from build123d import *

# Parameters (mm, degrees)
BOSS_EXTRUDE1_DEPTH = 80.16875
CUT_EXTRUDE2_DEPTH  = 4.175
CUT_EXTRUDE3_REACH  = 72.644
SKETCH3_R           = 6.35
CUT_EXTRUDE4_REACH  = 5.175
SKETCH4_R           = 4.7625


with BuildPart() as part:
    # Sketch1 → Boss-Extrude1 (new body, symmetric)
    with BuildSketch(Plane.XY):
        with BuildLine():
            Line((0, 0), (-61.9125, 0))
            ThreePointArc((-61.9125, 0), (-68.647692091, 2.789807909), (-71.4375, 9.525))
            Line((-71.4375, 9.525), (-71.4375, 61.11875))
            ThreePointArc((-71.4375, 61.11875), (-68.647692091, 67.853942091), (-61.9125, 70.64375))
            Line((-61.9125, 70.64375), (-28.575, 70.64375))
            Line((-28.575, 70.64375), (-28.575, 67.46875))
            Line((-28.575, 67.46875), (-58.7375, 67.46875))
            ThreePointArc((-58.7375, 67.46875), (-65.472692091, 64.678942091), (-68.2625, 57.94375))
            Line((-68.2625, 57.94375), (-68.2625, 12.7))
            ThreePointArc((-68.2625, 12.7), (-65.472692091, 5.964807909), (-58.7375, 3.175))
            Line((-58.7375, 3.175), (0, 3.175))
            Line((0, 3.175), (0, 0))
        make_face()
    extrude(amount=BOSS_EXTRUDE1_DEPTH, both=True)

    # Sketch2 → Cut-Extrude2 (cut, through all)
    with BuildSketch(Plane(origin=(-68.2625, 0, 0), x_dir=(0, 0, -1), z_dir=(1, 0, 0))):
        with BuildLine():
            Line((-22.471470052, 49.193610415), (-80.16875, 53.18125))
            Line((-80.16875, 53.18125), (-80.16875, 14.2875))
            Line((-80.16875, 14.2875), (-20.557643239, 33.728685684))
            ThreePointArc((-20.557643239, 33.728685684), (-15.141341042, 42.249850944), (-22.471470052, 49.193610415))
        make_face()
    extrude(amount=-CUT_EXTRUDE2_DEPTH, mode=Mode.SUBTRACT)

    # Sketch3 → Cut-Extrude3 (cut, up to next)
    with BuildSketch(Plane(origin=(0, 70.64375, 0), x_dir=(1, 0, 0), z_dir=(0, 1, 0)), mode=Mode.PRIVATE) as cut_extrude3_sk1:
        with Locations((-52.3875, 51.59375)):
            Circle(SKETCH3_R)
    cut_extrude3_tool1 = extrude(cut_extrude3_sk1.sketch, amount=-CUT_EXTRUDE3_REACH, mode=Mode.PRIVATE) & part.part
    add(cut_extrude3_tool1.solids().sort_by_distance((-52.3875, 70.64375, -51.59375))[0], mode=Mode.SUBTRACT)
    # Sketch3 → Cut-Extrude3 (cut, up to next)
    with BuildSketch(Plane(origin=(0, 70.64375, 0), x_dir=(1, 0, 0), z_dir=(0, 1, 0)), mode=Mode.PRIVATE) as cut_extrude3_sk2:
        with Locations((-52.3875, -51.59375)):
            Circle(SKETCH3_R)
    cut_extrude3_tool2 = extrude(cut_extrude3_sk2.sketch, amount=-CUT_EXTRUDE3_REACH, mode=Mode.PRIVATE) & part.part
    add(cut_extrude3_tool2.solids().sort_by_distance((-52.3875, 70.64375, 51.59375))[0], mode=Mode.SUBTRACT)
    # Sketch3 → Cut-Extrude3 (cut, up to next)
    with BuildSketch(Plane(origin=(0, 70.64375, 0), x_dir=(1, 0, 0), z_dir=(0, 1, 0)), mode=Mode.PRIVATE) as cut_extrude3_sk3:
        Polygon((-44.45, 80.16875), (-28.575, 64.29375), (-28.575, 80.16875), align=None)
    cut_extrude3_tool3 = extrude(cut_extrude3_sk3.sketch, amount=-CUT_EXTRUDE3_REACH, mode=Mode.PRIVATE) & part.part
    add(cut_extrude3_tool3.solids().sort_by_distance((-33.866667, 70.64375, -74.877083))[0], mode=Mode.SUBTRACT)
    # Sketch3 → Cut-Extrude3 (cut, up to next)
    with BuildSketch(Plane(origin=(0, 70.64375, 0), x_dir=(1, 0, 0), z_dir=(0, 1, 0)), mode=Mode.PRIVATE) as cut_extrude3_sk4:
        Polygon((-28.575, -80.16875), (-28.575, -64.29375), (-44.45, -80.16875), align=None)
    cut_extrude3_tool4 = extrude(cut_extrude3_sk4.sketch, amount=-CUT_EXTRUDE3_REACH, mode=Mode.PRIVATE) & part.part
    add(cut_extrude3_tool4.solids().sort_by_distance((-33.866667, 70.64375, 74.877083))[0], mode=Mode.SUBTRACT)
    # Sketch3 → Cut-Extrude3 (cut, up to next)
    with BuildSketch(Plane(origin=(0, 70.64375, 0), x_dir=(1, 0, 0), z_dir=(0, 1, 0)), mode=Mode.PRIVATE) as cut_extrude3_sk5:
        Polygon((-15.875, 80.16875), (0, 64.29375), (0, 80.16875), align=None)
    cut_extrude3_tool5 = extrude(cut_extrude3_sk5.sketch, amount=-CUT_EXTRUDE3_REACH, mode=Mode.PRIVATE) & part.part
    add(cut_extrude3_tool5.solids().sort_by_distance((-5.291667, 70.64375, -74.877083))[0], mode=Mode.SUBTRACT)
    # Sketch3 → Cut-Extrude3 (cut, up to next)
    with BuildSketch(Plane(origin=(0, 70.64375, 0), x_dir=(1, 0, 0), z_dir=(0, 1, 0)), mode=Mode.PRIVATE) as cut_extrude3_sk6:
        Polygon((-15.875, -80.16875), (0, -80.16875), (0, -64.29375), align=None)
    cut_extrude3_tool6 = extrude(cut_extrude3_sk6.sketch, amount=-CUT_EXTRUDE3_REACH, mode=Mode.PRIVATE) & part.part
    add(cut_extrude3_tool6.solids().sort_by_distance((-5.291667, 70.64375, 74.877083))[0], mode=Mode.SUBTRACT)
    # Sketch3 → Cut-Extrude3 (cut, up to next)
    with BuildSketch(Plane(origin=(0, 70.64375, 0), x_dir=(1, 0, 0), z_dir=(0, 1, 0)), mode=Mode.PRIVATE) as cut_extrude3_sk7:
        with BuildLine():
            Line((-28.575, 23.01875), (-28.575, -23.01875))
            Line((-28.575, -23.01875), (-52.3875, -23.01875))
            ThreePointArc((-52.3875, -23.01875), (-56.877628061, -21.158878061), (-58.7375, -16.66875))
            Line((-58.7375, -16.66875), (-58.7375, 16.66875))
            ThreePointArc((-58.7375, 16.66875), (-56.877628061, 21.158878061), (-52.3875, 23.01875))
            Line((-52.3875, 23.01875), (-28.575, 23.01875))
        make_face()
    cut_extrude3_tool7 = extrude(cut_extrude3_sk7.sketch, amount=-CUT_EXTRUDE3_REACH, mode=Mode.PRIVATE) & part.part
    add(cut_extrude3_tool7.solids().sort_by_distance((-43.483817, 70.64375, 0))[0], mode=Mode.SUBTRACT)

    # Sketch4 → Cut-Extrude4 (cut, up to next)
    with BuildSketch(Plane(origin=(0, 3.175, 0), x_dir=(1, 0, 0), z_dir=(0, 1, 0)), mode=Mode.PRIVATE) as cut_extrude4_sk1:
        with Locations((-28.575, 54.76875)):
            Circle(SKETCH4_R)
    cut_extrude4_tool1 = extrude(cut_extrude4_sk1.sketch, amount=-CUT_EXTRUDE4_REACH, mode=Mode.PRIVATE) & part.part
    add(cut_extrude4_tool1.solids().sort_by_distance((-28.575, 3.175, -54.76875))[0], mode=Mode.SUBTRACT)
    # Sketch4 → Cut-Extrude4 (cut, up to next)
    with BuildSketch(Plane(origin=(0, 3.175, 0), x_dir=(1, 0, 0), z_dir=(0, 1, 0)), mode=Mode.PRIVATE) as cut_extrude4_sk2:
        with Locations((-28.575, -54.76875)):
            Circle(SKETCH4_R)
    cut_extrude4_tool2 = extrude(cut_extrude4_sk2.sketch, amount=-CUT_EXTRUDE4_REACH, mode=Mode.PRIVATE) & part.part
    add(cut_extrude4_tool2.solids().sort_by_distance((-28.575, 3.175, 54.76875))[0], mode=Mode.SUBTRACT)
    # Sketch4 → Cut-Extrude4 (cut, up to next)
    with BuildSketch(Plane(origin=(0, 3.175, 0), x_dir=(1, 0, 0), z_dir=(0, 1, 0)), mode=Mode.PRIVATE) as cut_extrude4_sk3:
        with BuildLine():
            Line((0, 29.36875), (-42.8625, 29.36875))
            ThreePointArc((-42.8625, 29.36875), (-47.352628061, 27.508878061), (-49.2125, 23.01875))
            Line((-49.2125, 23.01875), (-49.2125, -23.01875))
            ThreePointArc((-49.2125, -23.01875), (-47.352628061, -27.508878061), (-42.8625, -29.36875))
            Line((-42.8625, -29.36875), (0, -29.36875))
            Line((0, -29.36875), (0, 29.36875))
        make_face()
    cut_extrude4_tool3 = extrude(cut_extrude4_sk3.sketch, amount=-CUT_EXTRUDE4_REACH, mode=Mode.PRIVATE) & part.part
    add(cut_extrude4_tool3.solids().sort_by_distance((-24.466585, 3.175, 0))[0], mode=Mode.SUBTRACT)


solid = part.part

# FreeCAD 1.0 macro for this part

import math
import FreeCAD as App
import Part
import Sketcher
Q = App.Units.Quantity

doc = App.newDocument("Part")
body = doc.addObject("PartDesign::Body", "Body")

# Sketch on XY plane
sketch1 = doc.addObject("Sketcher::SketchObject", "Sketch")
body.addObject(sketch1)
sketch1.AttachmentSupport = (doc.XY_Plane, [""])
sketch1.MapMode = "FlatFace"
sketch1.addGeometry([
    Part.LineSegment(App.Vector(-61.9125, 0, 0), App.Vector(0, 0, 0)),  # 0
    Part.LineSegment(App.Vector(0, 0, 0), App.Vector(0, 3.175, 0)),  # 1
    Part.LineSegment(App.Vector(0, 3.175, 0), App.Vector(-58.7375, 3.175, 0)),  # 2
    Part.ArcOfCircle(Part.Circle(App.Vector(-58.7375, 12.7, 0), App.Vector(0, 0, 1), 9.525), math.radians(180), math.radians(270)),  # 3
    Part.LineSegment(App.Vector(-68.2625, 12.7, 0), App.Vector(-68.2625, 57.94375, 0)),  # 4
    Part.ArcOfCircle(Part.Circle(App.Vector(-58.7375, 57.94375, 0), App.Vector(0, 0, 1), 9.525), math.radians(90), math.radians(180)),  # 5
    Part.LineSegment(App.Vector(-58.7375, 67.46875, 0), App.Vector(-28.575, 67.46875, 0)),  # 6
    Part.LineSegment(App.Vector(-28.575, 67.46875, 0), App.Vector(-28.575, 70.64375, 0)),  # 7
    Part.LineSegment(App.Vector(-28.575, 70.64375, 0), App.Vector(-61.9125, 70.64375, 0)),  # 8
    Part.ArcOfCircle(Part.Circle(App.Vector(-61.9125, 61.11875, 0), App.Vector(0, 0, 1), 9.525), math.radians(90), math.radians(180)),  # 9
    Part.LineSegment(App.Vector(-71.4375, 61.11875, 0), App.Vector(-71.4375, 9.525, 0)),  # 10
    Part.ArcOfCircle(Part.Circle(App.Vector(-61.9125, 9.525, 0), App.Vector(0, 0, 1), 9.525), math.radians(180), math.radians(270)),  # 11
], False)
sketch1.addConstraint([
    Sketcher.Constraint("Coincident", 0, 2, 1, 1),
    Sketcher.Constraint("Coincident", 1, 2, 2, 1),
    Sketcher.Constraint("Tangent", 2, 2, 3, 2),
    Sketcher.Constraint("Tangent", 3, 1, 4, 1),
    Sketcher.Constraint("Tangent", 4, 2, 5, 2),
    Sketcher.Constraint("Tangent", 5, 1, 6, 1),
    Sketcher.Constraint("Coincident", 6, 2, 7, 1),
    Sketcher.Constraint("Coincident", 7, 2, 8, 1),
    Sketcher.Constraint("Tangent", 8, 2, 9, 1),
    Sketcher.Constraint("Tangent", 9, 2, 10, 1),
    Sketcher.Constraint("Tangent", 10, 2, 11, 1),
    Sketcher.Constraint("Tangent", 11, 2, 0, 1),
    Sketcher.Constraint("Horizontal", 0),
    Sketcher.Constraint("Vertical", 1),
    Sketcher.Constraint("Horizontal", 2),
    Sketcher.Constraint("Vertical", 4),
    Sketcher.Constraint("Horizontal", 6),
    Sketcher.Constraint("Vertical", 7),
    Sketcher.Constraint("Horizontal", 8),
    Sketcher.Constraint("Vertical", 10),
    Sketcher.Constraint("Coincident", 0, 2, -1, 1),
    Sketcher.Constraint("Equal", 3, 5),
    Sketcher.Constraint("Equal", 5, 9),
    Sketcher.Constraint("Equal", 9, 11),
    Sketcher.Constraint("Equal", 1, 7),
    Sketcher.Constraint("Radius", 3, Q("0.375 in")),
    Sketcher.Constraint("DistanceY", -1, 1, 3, 3, Q("0.5 in")),
    Sketcher.Constraint("DistanceX", 9, 2, 5, 3, Q("0.5 in")),
    Sketcher.Constraint("DistanceX", 0, 1, 0, 2, Q("2.4375 in")),
    Sketcher.Constraint("DistanceX", 6, 1, 6, 2, Q("1.1875 in")),
    Sketcher.Constraint("DistanceY", 4, 1, 4, 2, Q("1.78125 in")),
])
pad1 = doc.addObject("PartDesign::Pad", "Pad")
body.addObject(pad1)
pad1.Profile = sketch1
pad1.Length = Q("6.3125 in")
pad1.Midplane = True

# Sketch on YZ plane
sketch2 = doc.addObject("Sketcher::SketchObject", "Sketch001")
body.addObject(sketch2)
sketch2.AttachmentSupport = (doc.YZ_Plane, [""])
sketch2.MapMode = "FlatFace"
sketch2.AttachmentOffset = App.Placement(App.Vector(0, 0, -2.6875 * 25.4), App.Rotation())
sketch2.addGeometry([
    Part.LineSegment(App.Vector(49.19361, 22.47147, 0), App.Vector(53.18125, 80.16875, 0)),
    Part.LineSegment(App.Vector(53.18125, 80.16875, 0), App.Vector(14.2875, 80.16875, 0)),
    Part.LineSegment(App.Vector(14.2875, 80.16875, 0), App.Vector(33.728686, 20.557643, 0)),
    Part.ArcOfCircle(Part.Circle(App.Vector(41.275, 23.01875, 0), App.Vector(0, 0, 1), 7.9375), math.radians(-161.937112), math.radians(-3.953604)),
], False)
sketch2.addConstraint([
    Sketcher.Constraint("Coincident", 0, 2, 1, 1),
    Sketcher.Constraint("Coincident", 1, 2, 2, 1),
    Sketcher.Constraint("Tangent", 2, 2, 3, 1),
    Sketcher.Constraint("Tangent", 3, 2, 0, 1),
    Sketcher.Constraint("Horizontal", 1),
    Sketcher.Constraint("Radius", 3, Q("0.3125 in")),
    Sketcher.Constraint("DistanceX", 1, 2, 1, 1, Q("1.53125 in")),
    Sketcher.Constraint("DistanceY", 3, 3, 0, 2, Q("2.25 in")),
    Sketcher.Constraint("DistanceX", -1, 1, 3, 3, Q("1.625 in")),
    Sketcher.Constraint("DistanceY", -1, 1, 3, 3, Q("0.90625 in")),
    Sketcher.Constraint("DistanceX", -1, 1, 0, 2, Q("2.09375 in")),
])
pocket1 = doc.addObject("PartDesign::Pocket", "Pocket")
body.addObject(pocket1)
pocket1.Profile = sketch2
pocket1.Type = "ThroughAll"

# Sketch on XZ plane
sketch3 = doc.addObject("Sketcher::SketchObject", "Sketch002")
body.addObject(sketch3)
sketch3.AttachmentSupport = (doc.XZ_Plane, [""])
sketch3.MapMode = "FlatFace"
sketch3.AttachmentOffset = App.Placement(App.Vector(0, 0, -2.78125 * 25.4), App.Rotation())
sketch3.addGeometry(Part.Circle(App.Vector(-52.3875, -51.59375, 0), App.Vector(0, 0, 1), 6.35), False)
sketch3.addConstraint([
    Sketcher.Constraint("Diameter", 0, Q("0.5 in")),
    Sketcher.Constraint("DistanceX", 0, 3, -1, 1, Q("2.0625 in")),
    Sketcher.Constraint("DistanceY", 0, 3, -1, 1, Q("2.03125 in")),
])
pocket2 = doc.addObject("PartDesign::Pocket", "Pocket001")
body.addObject(pocket2)
pocket2.Profile = sketch3
pocket2.Type = "UpToFirst"
pocket2.Reversed = True

# Sketch on XZ plane
sketch4 = doc.addObject("Sketcher::SketchObject", "Sketch003")
body.addObject(sketch4)
sketch4.AttachmentSupport = (doc.XZ_Plane, [""])
sketch4.MapMode = "FlatFace"
sketch4.AttachmentOffset = App.Placement(App.Vector(0, 0, -2.78125 * 25.4), App.Rotation())
sketch4.addGeometry(Part.Circle(App.Vector(-52.3875, 51.59375, 0), App.Vector(0, 0, 1), 6.35), False)
sketch4.addConstraint([
    Sketcher.Constraint("Diameter", 0, Q("0.5 in")),
    Sketcher.Constraint("DistanceX", 0, 3, -1, 1, Q("2.0625 in")),
    Sketcher.Constraint("DistanceY", -1, 1, 0, 3, Q("2.03125 in")),
])
pocket3 = doc.addObject("PartDesign::Pocket", "Pocket002")
body.addObject(pocket3)
pocket3.Profile = sketch4
pocket3.Type = "UpToFirst"
pocket3.Reversed = True

# Sketch on XZ plane
sketch5 = doc.addObject("Sketcher::SketchObject", "Sketch004")
body.addObject(sketch5)
sketch5.AttachmentSupport = (doc.XZ_Plane, [""])
sketch5.MapMode = "FlatFace"
sketch5.AttachmentOffset = App.Placement(App.Vector(0, 0, -2.78125 * 25.4), App.Rotation())
sketch5.addGeometry([
    Part.LineSegment(App.Vector(-44.45, -80.16875, 0), App.Vector(-28.575, -64.29375, 0)),
    Part.LineSegment(App.Vector(-28.575, -64.29375, 0), App.Vector(-28.575, -80.16875, 0)),
    Part.LineSegment(App.Vector(-28.575, -80.16875, 0), App.Vector(-44.45, -80.16875, 0)),
], False)
sketch5.addConstraint([
    Sketcher.Constraint("Coincident", 0, 2, 1, 1),
    Sketcher.Constraint("Coincident", 1, 2, 2, 1),
    Sketcher.Constraint("Coincident", 2, 2, 0, 1),
    Sketcher.Constraint("Vertical", 1),
    Sketcher.Constraint("Horizontal", 2),
    Sketcher.Constraint("Equal", 2, 1),
    Sketcher.Constraint("DistanceX", 2, 2, 2, 1, Q("0.625 in")),
    Sketcher.Constraint("DistanceX", 2, 2, -1, 1, Q("1.75 in")),
    Sketcher.Constraint("DistanceY", 0, 2, -1, 1, Q("2.53125 in")),
])
pocket4 = doc.addObject("PartDesign::Pocket", "Pocket003")
body.addObject(pocket4)
pocket4.Profile = sketch5
pocket4.Type = "UpToFirst"
pocket4.Reversed = True

# Sketch on XZ plane
sketch6 = doc.addObject("Sketcher::SketchObject", "Sketch005")
body.addObject(sketch6)
sketch6.AttachmentSupport = (doc.XZ_Plane, [""])
sketch6.MapMode = "FlatFace"
sketch6.AttachmentOffset = App.Placement(App.Vector(0, 0, -2.78125 * 25.4), App.Rotation())
sketch6.addGeometry([
    Part.LineSegment(App.Vector(-28.575, 80.16875, 0), App.Vector(-28.575, 64.29375, 0)),
    Part.LineSegment(App.Vector(-28.575, 64.29375, 0), App.Vector(-44.45, 80.16875, 0)),
    Part.LineSegment(App.Vector(-44.45, 80.16875, 0), App.Vector(-28.575, 80.16875, 0)),
], False)
sketch6.addConstraint([
    Sketcher.Constraint("Coincident", 0, 2, 1, 1),
    Sketcher.Constraint("Coincident", 1, 2, 2, 1),
    Sketcher.Constraint("Coincident", 2, 2, 0, 1),
    Sketcher.Constraint("Vertical", 0),
    Sketcher.Constraint("Horizontal", 2),
    Sketcher.Constraint("Equal", 2, 0),
    Sketcher.Constraint("DistanceX", 2, 1, 2, 2, Q("0.625 in")),
    Sketcher.Constraint("DistanceX", 1, 2, -1, 1, Q("1.75 in")),
    Sketcher.Constraint("DistanceY", -1, 1, 0, 2, Q("2.53125 in")),
])
pocket5 = doc.addObject("PartDesign::Pocket", "Pocket004")
body.addObject(pocket5)
pocket5.Profile = sketch6
pocket5.Type = "UpToFirst"
pocket5.Reversed = True

# Sketch on XZ plane
sketch7 = doc.addObject("Sketcher::SketchObject", "Sketch006")
body.addObject(sketch7)
sketch7.AttachmentSupport = (doc.XZ_Plane, [""])
sketch7.MapMode = "FlatFace"
sketch7.AttachmentOffset = App.Placement(App.Vector(0, 0, -2.78125 * 25.4), App.Rotation())
sketch7.addGeometry([
    Part.LineSegment(App.Vector(-15.875, -80.16875, 0), App.Vector(0, -64.29375, 0)),
    Part.LineSegment(App.Vector(0, -64.29375, 0), App.Vector(0, -80.16875, 0)),
    Part.LineSegment(App.Vector(0, -80.16875, 0), App.Vector(-15.875, -80.16875, 0)),
], False)
sketch7.addConstraint([
    Sketcher.Constraint("Coincident", 0, 2, 1, 1),
    Sketcher.Constraint("Coincident", 1, 2, 2, 1),
    Sketcher.Constraint("Coincident", 2, 2, 0, 1),
    Sketcher.Constraint("Vertical", 1),
    Sketcher.Constraint("Horizontal", 2),
    Sketcher.Constraint("PointOnObject", 0, 2, -2),
    Sketcher.Constraint("Equal", 2, 1),
    Sketcher.Constraint("DistanceX", 2, 2, 2, 1, Q("0.625 in")),
    Sketcher.Constraint("DistanceY", 0, 2, -1, 1, Q("2.53125 in")),
])
pocket6 = doc.addObject("PartDesign::Pocket", "Pocket005")
body.addObject(pocket6)
pocket6.Profile = sketch7
pocket6.Length = Q("2.78125 in")
pocket6.Reversed = True

# Sketch on XZ plane
sketch8 = doc.addObject("Sketcher::SketchObject", "Sketch007")
body.addObject(sketch8)
sketch8.AttachmentSupport = (doc.XZ_Plane, [""])
sketch8.MapMode = "FlatFace"
sketch8.AttachmentOffset = App.Placement(App.Vector(0, 0, -2.78125 * 25.4), App.Rotation())
sketch8.addGeometry([
    Part.LineSegment(App.Vector(-15.875, 80.16875, 0), App.Vector(0, 80.16875, 0)),
    Part.LineSegment(App.Vector(0, 80.16875, 0), App.Vector(0, 64.29375, 0)),
    Part.LineSegment(App.Vector(0, 64.29375, 0), App.Vector(-15.875, 80.16875, 0)),
], False)
sketch8.addConstraint([
    Sketcher.Constraint("Coincident", 0, 2, 1, 1),
    Sketcher.Constraint("Coincident", 1, 2, 2, 1),
    Sketcher.Constraint("Coincident", 2, 2, 0, 1),
    Sketcher.Constraint("Horizontal", 0),
    Sketcher.Constraint("Vertical", 1),
    Sketcher.Constraint("PointOnObject", 0, 2, -2),
    Sketcher.Constraint("Equal", 0, 1),
    Sketcher.Constraint("DistanceX", 0, 1, 0, 2, Q("0.625 in")),
    Sketcher.Constraint("DistanceY", -1, 1, 0, 2, Q("3.15625 in")),
])
pocket7 = doc.addObject("PartDesign::Pocket", "Pocket006")
body.addObject(pocket7)
pocket7.Profile = sketch8
pocket7.Length = Q("2.78125 in")
pocket7.Reversed = True

# Sketch on XZ plane
sketch9 = doc.addObject("Sketcher::SketchObject", "Sketch008")
body.addObject(sketch9)
sketch9.AttachmentSupport = (doc.XZ_Plane, [""])
sketch9.MapMode = "FlatFace"
sketch9.AttachmentOffset = App.Placement(App.Vector(0, 0, -2.78125 * 25.4), App.Rotation())
sketch9.addGeometry([
    Part.LineSegment(App.Vector(-28.575, 23.01875, 0), App.Vector(-28.575, -23.01875, 0)),  # 0
    Part.LineSegment(App.Vector(-28.575, -23.01875, 0), App.Vector(-52.3875, -23.01875, 0)),  # 1
    Part.ArcOfCircle(Part.Circle(App.Vector(-52.3875, -16.66875, 0), App.Vector(0, 0, 1), 6.35), math.radians(180), math.radians(270)),  # 2
    Part.LineSegment(App.Vector(-58.7375, -16.66875, 0), App.Vector(-58.7375, 16.66875, 0)),  # 3
    Part.ArcOfCircle(Part.Circle(App.Vector(-52.3875, 16.66875, 0), App.Vector(0, 0, 1), 6.35), math.radians(90), math.radians(180)),  # 4
    Part.LineSegment(App.Vector(-52.3875, 23.01875, 0), App.Vector(-28.575, 23.01875, 0)),  # 5
], False)
sketch9.addConstraint([
    Sketcher.Constraint("Coincident", 0, 2, 1, 1),
    Sketcher.Constraint("Tangent", 1, 2, 2, 2),
    Sketcher.Constraint("Tangent", 2, 1, 3, 1),
    Sketcher.Constraint("Tangent", 3, 2, 4, 2),
    Sketcher.Constraint("Tangent", 4, 1, 5, 1),
    Sketcher.Constraint("Coincident", 5, 2, 0, 1),
    Sketcher.Constraint("Vertical", 0),
    Sketcher.Constraint("Horizontal", 1),
    Sketcher.Constraint("Vertical", 3),
    Sketcher.Constraint("Horizontal", 5),
    Sketcher.Constraint("Equal", 2, 4),
    Sketcher.Constraint("Radius", 2, Q("0.25 in")),
    Sketcher.Constraint("DistanceX", 1, 2, 1, 1, Q("0.9375 in")),
    Sketcher.Constraint("DistanceY", 0, 2, 0, 1, Q("1.8125 in")),
    Sketcher.Constraint("DistanceX", 2, 3, -1, 1, Q("2.0625 in")),
    Sketcher.Constraint("DistanceY", 2, 3, -1, 1, Q("0.65625 in")),
])
pocket8 = doc.addObject("PartDesign::Pocket", "Pocket007")
body.addObject(pocket8)
pocket8.Profile = sketch9
pocket8.Type = "UpToFirst"
pocket8.Reversed = True

# Sketch on XZ plane
sketch10 = doc.addObject("Sketcher::SketchObject", "Sketch009")
body.addObject(sketch10)
sketch10.AttachmentSupport = (doc.XZ_Plane, [""])
sketch10.MapMode = "FlatFace"
sketch10.AttachmentOffset = App.Placement(App.Vector(0, 0, -0.125 * 25.4), App.Rotation())
sketch10.addGeometry(Part.Circle(App.Vector(-28.575, -54.76875, 0), App.Vector(0, 0, 1), 4.7625), False)
sketch10.addConstraint([
    Sketcher.Constraint("Diameter", 0, Q("0.375 in")),
    Sketcher.Constraint("DistanceX", 0, 3, -1, 1, Q("1.125 in")),
    Sketcher.Constraint("DistanceY", 0, 3, -1, 1, Q("2.15625 in")),
])
pocket9 = doc.addObject("PartDesign::Pocket", "Pocket008")
body.addObject(pocket9)
pocket9.Profile = sketch10
pocket9.Type = "UpToFirst"
pocket9.Reversed = True

# Sketch on XZ plane
sketch11 = doc.addObject("Sketcher::SketchObject", "Sketch010")
body.addObject(sketch11)
sketch11.AttachmentSupport = (doc.XZ_Plane, [""])
sketch11.MapMode = "FlatFace"
sketch11.AttachmentOffset = App.Placement(App.Vector(0, 0, -0.125 * 25.4), App.Rotation())
sketch11.addGeometry(Part.Circle(App.Vector(-28.575, 54.76875, 0), App.Vector(0, 0, 1), 4.7625), False)
sketch11.addConstraint([
    Sketcher.Constraint("Diameter", 0, Q("0.375 in")),
    Sketcher.Constraint("DistanceX", 0, 3, -1, 1, Q("1.125 in")),
    Sketcher.Constraint("DistanceY", -1, 1, 0, 3, Q("2.15625 in")),
])
pocket10 = doc.addObject("PartDesign::Pocket", "Pocket009")
body.addObject(pocket10)
pocket10.Profile = sketch11
pocket10.Type = "UpToFirst"
pocket10.Reversed = True

# Sketch on XZ plane
sketch12 = doc.addObject("Sketcher::SketchObject", "Sketch011")
body.addObject(sketch12)
sketch12.AttachmentSupport = (doc.XZ_Plane, [""])
sketch12.MapMode = "FlatFace"
sketch12.AttachmentOffset = App.Placement(App.Vector(0, 0, -0.125 * 25.4), App.Rotation())
sketch12.addGeometry([
    Part.LineSegment(App.Vector(0, -29.36875, 0), App.Vector(-42.8625, -29.36875, 0)),  # 0
    Part.ArcOfCircle(Part.Circle(App.Vector(-42.8625, -23.01875, 0), App.Vector(0, 0, 1), 6.35), math.radians(180), math.radians(270)),  # 1
    Part.LineSegment(App.Vector(-49.2125, -23.01875, 0), App.Vector(-49.2125, 23.01875, 0)),  # 2
    Part.ArcOfCircle(Part.Circle(App.Vector(-42.8625, 23.01875, 0), App.Vector(0, 0, 1), 6.35), math.radians(90), math.radians(180)),  # 3
    Part.LineSegment(App.Vector(-42.8625, 29.36875, 0), App.Vector(0, 29.36875, 0)),  # 4
    Part.LineSegment(App.Vector(0, 29.36875, 0), App.Vector(0, -29.36875, 0)),  # 5
], False)
sketch12.addConstraint([
    Sketcher.Constraint("Tangent", 0, 2, 1, 2),
    Sketcher.Constraint("Tangent", 1, 1, 2, 1),
    Sketcher.Constraint("Tangent", 2, 2, 3, 2),
    Sketcher.Constraint("Tangent", 3, 1, 4, 1),
    Sketcher.Constraint("Coincident", 4, 2, 5, 1),
    Sketcher.Constraint("Coincident", 5, 2, 0, 1),
    Sketcher.Constraint("Horizontal", 0),
    Sketcher.Constraint("Vertical", 2),
    Sketcher.Constraint("Horizontal", 4),
    Sketcher.Constraint("Vertical", 5),
    Sketcher.Constraint("Equal", 1, 3),
    Sketcher.Constraint("Symmetric", 4, 2, 5, 2, -1, 1),
    Sketcher.Constraint("Radius", 1, Q("0.25 in")),
    Sketcher.Constraint("DistanceX", 0, 2, 0, 1, Q("1.6875 in")),
    Sketcher.Constraint("DistanceY", 2, 1, 2, 2, Q("1.8125 in")),
])
pocket11 = doc.addObject("PartDesign::Pocket", "Pocket010")
body.addObject(pocket11)
pocket11.Profile = sketch12
pocket11.Type = "UpToFirst"
pocket11.Reversed = True

doc.recompute()
